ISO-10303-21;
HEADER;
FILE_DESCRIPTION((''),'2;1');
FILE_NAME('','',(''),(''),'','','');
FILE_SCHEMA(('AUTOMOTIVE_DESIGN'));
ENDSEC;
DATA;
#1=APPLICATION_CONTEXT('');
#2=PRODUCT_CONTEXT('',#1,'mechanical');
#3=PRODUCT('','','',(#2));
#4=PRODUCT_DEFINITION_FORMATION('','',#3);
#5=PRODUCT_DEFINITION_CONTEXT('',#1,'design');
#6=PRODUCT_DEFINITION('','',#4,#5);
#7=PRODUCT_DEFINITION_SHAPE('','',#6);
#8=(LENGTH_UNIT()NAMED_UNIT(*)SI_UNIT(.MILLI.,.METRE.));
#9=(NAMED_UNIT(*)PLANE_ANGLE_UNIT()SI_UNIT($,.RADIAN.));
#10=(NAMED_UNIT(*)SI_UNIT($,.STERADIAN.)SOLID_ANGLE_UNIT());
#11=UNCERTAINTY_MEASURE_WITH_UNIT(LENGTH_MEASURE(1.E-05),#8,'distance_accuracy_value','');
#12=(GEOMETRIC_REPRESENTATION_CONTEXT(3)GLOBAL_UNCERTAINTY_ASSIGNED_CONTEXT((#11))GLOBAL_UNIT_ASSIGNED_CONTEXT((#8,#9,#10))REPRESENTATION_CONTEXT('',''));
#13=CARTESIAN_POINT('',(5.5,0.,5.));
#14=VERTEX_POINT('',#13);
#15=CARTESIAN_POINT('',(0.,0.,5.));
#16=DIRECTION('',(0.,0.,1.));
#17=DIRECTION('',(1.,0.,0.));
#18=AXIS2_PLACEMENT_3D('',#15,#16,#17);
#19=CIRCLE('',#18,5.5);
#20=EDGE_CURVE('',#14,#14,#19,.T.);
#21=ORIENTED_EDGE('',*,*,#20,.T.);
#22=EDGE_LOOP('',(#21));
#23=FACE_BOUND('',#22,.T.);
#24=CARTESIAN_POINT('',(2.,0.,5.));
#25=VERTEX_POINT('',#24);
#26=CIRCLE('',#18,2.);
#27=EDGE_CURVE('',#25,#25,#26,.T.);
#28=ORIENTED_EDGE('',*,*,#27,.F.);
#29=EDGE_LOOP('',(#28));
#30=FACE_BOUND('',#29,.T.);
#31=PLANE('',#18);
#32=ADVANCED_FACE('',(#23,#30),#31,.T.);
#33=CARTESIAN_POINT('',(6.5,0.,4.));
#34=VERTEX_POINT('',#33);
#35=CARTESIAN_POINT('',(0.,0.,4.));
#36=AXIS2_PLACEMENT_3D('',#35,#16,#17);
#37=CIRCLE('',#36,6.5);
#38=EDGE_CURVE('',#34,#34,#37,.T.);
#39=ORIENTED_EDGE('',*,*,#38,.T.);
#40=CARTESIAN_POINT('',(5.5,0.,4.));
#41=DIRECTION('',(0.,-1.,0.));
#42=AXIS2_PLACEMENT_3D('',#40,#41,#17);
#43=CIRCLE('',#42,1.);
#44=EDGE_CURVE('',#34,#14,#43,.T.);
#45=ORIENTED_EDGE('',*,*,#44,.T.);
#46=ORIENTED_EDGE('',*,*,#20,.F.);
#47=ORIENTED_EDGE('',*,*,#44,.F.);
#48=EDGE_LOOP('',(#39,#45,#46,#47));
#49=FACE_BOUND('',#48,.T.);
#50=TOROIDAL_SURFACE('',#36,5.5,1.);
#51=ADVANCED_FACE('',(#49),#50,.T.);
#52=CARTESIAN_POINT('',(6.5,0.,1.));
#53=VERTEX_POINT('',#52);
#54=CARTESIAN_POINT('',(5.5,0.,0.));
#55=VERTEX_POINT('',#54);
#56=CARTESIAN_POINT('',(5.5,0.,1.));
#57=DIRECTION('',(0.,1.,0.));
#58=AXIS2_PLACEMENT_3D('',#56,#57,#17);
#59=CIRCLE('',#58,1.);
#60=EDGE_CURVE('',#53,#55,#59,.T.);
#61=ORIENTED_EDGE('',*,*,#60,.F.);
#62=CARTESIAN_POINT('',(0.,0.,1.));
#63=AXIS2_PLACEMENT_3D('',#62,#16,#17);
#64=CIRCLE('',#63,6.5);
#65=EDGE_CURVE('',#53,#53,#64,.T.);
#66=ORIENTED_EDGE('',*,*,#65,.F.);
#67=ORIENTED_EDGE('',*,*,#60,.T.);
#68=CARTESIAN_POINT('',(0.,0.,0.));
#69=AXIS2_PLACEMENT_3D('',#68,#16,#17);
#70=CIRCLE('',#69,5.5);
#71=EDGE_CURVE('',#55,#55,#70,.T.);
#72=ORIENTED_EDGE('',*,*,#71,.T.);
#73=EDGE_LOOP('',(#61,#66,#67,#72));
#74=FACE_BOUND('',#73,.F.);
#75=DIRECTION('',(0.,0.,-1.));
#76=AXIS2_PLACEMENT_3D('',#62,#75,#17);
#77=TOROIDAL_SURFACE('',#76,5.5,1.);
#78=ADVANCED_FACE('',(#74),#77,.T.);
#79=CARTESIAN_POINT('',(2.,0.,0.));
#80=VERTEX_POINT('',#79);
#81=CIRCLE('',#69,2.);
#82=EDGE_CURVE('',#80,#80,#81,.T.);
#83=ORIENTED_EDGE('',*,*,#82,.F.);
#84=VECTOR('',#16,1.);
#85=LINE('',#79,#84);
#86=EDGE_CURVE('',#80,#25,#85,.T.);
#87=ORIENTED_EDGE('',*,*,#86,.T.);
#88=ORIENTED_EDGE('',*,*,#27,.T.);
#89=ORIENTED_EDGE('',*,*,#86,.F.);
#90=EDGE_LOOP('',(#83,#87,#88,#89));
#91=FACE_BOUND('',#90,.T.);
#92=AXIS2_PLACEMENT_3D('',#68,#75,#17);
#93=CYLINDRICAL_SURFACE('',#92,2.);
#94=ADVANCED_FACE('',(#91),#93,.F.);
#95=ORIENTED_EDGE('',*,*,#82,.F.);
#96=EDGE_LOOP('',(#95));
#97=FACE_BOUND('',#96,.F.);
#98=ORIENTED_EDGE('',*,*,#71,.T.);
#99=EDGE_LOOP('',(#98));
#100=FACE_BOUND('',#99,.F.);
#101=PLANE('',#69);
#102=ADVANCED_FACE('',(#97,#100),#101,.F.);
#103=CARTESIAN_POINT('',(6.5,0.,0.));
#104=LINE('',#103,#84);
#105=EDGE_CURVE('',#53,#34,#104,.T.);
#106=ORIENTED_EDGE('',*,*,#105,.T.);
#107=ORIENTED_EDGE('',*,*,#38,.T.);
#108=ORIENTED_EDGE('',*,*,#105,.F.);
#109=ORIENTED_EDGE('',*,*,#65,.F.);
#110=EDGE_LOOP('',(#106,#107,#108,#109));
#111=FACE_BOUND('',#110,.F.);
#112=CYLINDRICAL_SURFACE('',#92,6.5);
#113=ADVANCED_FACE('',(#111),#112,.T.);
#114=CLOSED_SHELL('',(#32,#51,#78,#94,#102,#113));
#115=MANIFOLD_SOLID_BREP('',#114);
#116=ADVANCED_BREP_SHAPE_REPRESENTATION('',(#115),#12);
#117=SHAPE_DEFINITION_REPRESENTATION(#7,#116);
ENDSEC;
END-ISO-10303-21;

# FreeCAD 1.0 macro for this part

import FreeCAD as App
import Part
import Sketcher
from FreeCAD import Vector


def edges_at(feature, points):
    """Names of the edges that pass closest to the given points."""
    edges = feature.Shape.Edges
    near = lambda p: min(range(len(edges)), key=lambda i: edges[i].distToShape(Part.Vertex(*p))[0])
    return sorted({f"Edge{near(p) + 1}" for p in points})

doc = App.newDocument("Part")
body = doc.addObject("PartDesign::Body", "Body")

# Sketch on XY plane
sketch1 = body.newObject("Sketcher::SketchObject", "Sketch")
sketch1.AttachmentSupport = (doc.getObject("XY_Plane"), [""])
sketch1.MapMode = "FlatFace"
sketch1.addGeometry([
    Part.Circle(Vector(0, 0, 0), Vector(0, 0, 1), 6.5),
    Part.Circle(Vector(0, 0, 0), Vector(0, 0, 1), 2),
], False)
sketch1.addConstraint([
    Sketcher.Constraint("Coincident", 0, 3, -1, 1),
    Sketcher.Constraint("Coincident", 1, 3, -1, 1),
    Sketcher.Constraint("Diameter", 0, 13.0),
    Sketcher.Constraint("Diameter", 1, 4.0),
])
pad1 = body.newObject("PartDesign::Pad", "Pad")
pad1.Profile = sketch1
pad1.Length = 5
doc.recompute()

fillet = body.newObject("PartDesign::Fillet", "Fillet")
fillet.Base = (pad1, edges_at(pad1, [(-6.5, 0, 5), (-6.5, 0, 0)]))
fillet.Radius = 1

doc.recompute()
